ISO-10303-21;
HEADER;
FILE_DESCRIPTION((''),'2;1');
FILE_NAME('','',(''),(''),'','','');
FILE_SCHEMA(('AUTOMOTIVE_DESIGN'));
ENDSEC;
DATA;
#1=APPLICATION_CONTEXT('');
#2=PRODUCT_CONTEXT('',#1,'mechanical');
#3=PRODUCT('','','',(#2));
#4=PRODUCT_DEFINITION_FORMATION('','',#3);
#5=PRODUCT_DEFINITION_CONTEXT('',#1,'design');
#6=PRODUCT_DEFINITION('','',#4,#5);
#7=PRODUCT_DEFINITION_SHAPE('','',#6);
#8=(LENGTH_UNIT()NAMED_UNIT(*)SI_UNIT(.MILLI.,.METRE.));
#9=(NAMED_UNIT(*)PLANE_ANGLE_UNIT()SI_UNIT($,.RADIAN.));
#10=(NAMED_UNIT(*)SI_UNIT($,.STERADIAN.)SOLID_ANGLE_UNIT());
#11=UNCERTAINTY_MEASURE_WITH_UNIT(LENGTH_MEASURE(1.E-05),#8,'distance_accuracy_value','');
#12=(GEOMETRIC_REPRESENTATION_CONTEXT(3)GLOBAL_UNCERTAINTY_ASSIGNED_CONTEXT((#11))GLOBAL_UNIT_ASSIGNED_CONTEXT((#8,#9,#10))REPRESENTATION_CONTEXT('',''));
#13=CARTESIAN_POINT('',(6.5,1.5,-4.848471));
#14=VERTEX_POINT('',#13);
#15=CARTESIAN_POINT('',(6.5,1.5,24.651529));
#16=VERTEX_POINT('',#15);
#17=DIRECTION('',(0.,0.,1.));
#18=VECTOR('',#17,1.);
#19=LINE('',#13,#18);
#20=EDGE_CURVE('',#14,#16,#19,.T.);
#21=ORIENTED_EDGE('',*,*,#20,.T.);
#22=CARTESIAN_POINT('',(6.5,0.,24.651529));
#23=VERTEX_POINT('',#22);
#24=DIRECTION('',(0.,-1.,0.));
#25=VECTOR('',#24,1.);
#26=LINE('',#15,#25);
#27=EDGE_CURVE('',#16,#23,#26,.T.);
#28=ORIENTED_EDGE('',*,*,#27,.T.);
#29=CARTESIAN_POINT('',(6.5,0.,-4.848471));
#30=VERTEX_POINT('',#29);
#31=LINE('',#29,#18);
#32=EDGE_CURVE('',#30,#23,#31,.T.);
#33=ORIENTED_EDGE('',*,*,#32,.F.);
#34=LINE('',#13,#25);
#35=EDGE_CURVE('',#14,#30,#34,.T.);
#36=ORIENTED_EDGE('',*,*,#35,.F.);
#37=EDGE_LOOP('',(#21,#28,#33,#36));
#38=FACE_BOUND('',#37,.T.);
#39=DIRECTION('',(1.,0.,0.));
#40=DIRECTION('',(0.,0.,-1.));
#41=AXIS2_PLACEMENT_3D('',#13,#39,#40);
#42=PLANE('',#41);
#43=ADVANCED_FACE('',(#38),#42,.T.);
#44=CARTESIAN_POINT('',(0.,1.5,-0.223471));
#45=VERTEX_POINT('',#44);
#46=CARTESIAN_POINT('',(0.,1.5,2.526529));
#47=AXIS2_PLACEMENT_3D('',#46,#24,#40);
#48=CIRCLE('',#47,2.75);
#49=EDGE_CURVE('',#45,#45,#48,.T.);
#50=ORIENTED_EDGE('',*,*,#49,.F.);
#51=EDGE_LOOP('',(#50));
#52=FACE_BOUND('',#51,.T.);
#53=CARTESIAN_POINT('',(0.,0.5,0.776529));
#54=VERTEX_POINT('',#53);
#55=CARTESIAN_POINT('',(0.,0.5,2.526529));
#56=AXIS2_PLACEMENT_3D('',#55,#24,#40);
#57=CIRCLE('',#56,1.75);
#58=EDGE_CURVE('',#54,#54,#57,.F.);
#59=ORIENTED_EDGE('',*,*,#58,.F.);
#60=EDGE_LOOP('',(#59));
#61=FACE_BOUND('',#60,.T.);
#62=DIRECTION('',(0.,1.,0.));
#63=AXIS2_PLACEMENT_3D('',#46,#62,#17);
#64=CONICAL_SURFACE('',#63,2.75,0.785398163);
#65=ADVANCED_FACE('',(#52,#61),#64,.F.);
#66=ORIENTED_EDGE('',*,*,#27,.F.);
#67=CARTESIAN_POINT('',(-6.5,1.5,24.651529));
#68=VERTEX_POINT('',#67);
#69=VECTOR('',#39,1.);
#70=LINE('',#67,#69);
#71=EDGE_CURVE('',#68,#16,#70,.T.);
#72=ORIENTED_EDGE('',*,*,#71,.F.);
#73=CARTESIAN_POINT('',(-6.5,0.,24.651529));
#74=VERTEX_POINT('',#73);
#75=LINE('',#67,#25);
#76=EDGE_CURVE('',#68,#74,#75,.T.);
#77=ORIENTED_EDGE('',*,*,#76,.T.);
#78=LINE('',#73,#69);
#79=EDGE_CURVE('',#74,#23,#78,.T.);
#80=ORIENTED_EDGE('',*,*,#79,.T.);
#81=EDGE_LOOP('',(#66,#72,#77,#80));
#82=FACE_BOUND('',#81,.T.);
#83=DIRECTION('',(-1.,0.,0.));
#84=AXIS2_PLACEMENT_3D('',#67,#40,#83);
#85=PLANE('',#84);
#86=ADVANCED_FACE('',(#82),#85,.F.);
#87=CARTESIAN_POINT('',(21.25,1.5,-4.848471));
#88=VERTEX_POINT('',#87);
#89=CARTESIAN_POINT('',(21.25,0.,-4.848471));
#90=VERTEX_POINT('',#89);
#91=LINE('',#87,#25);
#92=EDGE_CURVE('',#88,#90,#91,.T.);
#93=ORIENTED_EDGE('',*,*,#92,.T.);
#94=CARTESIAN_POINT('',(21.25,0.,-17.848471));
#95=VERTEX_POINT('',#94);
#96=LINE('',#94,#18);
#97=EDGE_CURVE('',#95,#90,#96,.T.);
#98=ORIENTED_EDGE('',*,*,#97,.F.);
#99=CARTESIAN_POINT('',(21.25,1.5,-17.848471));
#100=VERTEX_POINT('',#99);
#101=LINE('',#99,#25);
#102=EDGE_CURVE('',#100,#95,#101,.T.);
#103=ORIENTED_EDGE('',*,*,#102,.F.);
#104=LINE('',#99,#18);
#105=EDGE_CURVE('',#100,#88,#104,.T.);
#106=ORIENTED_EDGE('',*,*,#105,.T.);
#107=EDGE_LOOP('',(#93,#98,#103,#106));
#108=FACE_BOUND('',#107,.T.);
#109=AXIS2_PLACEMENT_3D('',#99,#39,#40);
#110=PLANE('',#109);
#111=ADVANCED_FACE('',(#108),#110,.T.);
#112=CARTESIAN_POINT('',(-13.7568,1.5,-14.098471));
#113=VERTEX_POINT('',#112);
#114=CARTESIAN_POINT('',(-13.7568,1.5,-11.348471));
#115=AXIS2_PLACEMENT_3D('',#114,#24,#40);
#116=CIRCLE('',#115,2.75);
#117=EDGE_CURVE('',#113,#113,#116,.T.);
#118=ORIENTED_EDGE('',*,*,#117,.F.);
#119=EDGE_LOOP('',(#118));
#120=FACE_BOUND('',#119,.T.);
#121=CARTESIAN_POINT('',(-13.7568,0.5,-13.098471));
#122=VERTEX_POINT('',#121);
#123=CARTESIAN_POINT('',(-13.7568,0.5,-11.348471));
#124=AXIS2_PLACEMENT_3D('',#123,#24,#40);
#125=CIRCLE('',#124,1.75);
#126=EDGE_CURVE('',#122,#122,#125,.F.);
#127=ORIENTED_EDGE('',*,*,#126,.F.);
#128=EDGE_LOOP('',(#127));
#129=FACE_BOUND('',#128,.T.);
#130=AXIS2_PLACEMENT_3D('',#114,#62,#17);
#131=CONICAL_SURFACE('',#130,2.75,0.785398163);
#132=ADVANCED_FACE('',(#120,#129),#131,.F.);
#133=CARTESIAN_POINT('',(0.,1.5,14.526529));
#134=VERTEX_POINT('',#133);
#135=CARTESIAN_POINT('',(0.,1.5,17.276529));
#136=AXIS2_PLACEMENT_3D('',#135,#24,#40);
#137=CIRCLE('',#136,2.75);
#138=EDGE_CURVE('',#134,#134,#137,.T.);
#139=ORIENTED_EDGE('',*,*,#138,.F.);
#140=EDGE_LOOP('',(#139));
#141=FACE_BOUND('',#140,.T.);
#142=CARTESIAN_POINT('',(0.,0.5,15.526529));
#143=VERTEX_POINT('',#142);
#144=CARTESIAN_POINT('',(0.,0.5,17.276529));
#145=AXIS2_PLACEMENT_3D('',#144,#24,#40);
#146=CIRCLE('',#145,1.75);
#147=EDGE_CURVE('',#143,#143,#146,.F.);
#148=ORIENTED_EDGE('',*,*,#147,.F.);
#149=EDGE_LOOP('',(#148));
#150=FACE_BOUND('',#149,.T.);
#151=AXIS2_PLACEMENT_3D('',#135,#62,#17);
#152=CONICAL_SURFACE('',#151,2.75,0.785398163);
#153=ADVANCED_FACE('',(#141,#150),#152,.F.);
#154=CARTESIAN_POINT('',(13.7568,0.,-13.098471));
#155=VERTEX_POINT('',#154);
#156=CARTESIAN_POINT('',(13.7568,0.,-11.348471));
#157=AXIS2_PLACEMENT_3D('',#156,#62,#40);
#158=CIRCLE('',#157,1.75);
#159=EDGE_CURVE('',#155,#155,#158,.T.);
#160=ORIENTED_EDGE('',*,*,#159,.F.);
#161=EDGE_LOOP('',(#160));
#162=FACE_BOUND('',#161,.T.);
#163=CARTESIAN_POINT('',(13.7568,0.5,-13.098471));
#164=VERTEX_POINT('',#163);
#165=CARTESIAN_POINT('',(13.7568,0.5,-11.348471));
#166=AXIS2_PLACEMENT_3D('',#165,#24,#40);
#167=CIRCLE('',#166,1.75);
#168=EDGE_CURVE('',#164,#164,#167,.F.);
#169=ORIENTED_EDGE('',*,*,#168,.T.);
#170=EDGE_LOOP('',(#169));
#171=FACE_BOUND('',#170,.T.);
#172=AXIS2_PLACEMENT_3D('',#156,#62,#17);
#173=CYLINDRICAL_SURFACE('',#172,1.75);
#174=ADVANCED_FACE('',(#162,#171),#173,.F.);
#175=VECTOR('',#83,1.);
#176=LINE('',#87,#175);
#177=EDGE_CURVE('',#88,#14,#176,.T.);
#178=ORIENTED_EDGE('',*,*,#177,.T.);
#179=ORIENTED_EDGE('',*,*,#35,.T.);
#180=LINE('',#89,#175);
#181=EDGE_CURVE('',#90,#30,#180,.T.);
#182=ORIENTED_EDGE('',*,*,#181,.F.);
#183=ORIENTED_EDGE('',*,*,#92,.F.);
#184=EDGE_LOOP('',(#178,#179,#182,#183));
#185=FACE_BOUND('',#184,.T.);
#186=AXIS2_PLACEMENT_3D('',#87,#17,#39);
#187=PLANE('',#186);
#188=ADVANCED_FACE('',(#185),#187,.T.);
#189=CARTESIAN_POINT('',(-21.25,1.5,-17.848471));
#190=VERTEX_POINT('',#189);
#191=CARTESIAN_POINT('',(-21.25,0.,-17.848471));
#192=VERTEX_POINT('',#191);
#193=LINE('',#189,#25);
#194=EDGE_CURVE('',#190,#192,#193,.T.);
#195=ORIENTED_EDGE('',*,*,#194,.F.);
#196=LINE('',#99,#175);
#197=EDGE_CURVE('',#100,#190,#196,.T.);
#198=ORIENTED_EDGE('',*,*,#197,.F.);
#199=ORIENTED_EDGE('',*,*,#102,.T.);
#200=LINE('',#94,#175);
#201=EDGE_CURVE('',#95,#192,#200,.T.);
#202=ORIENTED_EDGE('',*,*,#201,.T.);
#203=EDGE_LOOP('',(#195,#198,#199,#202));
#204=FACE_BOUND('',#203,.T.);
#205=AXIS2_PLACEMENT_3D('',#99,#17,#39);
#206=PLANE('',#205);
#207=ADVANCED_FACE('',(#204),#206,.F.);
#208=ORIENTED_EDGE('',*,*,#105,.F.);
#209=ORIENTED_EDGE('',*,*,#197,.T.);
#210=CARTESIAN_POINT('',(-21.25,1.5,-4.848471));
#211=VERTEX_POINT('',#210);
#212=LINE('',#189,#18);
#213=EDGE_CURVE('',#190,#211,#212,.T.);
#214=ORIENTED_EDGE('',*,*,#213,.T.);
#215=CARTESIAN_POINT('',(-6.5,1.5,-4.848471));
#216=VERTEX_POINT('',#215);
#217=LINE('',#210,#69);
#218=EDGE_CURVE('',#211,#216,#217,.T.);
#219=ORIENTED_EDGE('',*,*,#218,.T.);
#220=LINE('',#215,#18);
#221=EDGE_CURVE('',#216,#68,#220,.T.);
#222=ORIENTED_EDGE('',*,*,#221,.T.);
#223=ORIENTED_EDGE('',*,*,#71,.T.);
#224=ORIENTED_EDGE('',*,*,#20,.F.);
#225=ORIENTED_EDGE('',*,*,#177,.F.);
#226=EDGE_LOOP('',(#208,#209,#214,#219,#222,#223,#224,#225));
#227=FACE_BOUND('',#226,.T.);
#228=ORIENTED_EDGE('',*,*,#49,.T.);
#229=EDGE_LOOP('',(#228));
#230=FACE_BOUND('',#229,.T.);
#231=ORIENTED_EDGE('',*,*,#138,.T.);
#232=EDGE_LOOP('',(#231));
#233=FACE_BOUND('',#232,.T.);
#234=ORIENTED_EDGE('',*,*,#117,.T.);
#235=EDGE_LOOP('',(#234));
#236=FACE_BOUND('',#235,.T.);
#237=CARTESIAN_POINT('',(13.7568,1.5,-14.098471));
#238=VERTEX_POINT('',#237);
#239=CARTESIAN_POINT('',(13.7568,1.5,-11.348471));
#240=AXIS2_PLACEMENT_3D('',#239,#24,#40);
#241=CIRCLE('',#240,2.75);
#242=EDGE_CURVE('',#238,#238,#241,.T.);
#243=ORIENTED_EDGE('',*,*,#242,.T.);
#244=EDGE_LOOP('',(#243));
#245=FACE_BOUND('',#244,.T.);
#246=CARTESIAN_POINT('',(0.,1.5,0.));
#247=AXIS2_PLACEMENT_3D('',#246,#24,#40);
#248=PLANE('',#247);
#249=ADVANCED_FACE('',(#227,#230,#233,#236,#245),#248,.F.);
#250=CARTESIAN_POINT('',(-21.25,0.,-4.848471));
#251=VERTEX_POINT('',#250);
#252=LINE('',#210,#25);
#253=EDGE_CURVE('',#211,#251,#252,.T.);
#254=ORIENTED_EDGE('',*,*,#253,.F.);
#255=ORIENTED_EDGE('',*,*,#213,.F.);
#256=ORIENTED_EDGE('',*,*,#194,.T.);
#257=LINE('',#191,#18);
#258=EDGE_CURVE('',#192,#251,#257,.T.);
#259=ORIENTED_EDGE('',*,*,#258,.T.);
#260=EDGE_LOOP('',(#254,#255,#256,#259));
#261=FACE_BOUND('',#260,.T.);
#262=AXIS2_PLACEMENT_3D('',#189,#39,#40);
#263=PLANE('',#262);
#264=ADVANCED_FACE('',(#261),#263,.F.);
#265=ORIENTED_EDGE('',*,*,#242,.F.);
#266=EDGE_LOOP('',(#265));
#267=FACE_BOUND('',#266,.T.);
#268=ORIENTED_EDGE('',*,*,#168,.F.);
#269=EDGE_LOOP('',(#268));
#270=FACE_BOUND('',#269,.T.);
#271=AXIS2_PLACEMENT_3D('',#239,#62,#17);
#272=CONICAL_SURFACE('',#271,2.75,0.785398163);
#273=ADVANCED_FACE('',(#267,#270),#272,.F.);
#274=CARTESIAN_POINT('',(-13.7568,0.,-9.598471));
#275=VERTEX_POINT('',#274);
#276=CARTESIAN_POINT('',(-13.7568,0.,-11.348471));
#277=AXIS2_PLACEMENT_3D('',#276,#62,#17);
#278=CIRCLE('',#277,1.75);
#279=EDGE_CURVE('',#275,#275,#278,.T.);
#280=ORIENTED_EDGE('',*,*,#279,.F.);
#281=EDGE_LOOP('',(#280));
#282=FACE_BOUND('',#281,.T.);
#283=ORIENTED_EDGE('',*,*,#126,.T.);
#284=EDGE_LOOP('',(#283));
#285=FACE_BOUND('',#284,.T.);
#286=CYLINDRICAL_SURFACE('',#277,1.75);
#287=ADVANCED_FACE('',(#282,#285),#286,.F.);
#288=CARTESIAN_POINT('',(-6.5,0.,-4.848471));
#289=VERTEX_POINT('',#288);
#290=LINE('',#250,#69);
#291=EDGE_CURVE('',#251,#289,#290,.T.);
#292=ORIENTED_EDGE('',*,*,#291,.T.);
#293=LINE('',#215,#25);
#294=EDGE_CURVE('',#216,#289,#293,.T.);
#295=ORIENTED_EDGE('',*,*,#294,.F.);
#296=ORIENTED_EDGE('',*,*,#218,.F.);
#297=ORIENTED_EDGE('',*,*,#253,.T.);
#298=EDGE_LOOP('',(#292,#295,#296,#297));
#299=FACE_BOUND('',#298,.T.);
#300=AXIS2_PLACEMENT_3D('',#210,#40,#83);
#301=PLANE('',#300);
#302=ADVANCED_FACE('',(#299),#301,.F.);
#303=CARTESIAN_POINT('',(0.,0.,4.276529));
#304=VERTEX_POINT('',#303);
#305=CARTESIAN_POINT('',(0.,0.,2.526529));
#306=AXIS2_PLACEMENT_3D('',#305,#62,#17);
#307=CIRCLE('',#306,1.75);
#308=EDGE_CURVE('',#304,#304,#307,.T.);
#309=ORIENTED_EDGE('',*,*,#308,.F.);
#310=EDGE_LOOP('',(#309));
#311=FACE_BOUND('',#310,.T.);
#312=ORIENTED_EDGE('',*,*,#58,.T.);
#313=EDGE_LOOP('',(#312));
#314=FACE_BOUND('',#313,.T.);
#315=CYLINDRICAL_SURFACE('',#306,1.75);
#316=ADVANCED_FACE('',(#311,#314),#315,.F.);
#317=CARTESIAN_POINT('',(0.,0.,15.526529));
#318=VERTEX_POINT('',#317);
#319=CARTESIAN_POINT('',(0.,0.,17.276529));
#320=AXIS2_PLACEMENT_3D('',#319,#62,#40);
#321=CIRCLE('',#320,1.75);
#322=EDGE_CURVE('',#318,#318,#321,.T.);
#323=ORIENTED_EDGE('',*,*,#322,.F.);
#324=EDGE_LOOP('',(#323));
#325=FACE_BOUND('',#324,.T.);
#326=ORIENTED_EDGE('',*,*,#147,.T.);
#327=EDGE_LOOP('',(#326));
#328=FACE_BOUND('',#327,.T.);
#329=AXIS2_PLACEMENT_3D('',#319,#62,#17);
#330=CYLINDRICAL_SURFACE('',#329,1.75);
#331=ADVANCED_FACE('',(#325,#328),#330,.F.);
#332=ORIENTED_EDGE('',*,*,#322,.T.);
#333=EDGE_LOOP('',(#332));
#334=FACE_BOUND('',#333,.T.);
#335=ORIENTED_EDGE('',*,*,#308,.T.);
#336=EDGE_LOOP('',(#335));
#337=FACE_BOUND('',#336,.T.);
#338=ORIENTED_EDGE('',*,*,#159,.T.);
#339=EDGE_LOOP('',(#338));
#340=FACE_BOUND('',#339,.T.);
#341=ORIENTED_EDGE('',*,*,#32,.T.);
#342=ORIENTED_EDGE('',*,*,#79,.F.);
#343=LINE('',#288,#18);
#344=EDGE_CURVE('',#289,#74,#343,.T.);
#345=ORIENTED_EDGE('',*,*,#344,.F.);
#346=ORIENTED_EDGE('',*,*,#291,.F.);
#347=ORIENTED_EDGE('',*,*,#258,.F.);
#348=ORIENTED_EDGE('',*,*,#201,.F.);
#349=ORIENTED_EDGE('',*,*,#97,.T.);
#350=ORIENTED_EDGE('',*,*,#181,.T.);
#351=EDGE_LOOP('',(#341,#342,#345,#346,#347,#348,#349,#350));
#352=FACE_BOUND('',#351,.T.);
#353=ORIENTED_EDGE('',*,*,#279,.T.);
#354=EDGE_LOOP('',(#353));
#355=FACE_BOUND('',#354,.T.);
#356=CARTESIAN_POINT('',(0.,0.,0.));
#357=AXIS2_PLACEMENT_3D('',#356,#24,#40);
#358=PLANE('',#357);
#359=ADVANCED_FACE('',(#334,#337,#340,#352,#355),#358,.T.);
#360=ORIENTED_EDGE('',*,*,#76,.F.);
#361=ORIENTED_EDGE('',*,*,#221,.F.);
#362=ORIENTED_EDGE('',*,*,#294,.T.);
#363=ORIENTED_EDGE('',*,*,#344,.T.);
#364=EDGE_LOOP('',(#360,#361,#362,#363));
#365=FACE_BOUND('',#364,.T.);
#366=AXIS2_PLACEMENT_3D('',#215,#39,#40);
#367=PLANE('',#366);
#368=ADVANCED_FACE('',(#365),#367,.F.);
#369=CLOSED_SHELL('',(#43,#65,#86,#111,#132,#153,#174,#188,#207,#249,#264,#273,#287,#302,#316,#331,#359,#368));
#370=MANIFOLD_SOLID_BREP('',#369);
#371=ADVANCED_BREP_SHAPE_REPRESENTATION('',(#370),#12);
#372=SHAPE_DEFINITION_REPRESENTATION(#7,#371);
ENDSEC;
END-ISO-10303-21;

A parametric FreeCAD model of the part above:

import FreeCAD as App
import Part
import Sketcher
Q = App.Units.Quantity


def edges_at(feature, points):
    """Names of the edges that pass closest to the given points."""
    edges = feature.Shape.Edges
    near = lambda p: min(range(len(edges)), key=lambda i: edges[i].distToShape(Part.Vertex(*p))[0])
    return sorted({f"Edge{near(p) + 1}" for p in points})

doc = App.newDocument("Part")
body = doc.addObject("PartDesign::Body", "Body")

# Sketch on XZ plane
sketch1 = body.newObject("Sketcher::SketchObject", "Sketch")
sketch1.AttachmentSupport = (doc.getObject("XZ_Plane"), [""])
sketch1.MapMode = "FlatFace"
sketch1.addGeometry([
    Part.LineSegment(App.Vector(21.25, -17.848471, 0), App.Vector(-21.25, -17.848471, 0)),  # 0
    Part.LineSegment(App.Vector(-21.25, -17.848471, 0), App.Vector(-21.25, -4.848471, 0)),  # 1
    Part.LineSegment(App.Vector(-21.25, -4.848471, 0), App.Vector(-6.5, -4.848471, 0)),  # 2
    Part.LineSegment(App.Vector(-6.5, -4.848471, 0), App.Vector(-6.5, 24.651529, 0)),  # 3
    Part.LineSegment(App.Vector(-6.5, 24.651529, 0), App.Vector(6.5, 24.651529, 0)),  # 4
    Part.LineSegment(App.Vector(6.5, 24.651529, 0), App.Vector(6.5, -4.848471, 0)),  # 5
    Part.LineSegment(App.Vector(6.5, -4.848471, 0), App.Vector(21.25, -4.848471, 0)),  # 6
    Part.LineSegment(App.Vector(21.25, -4.848471, 0), App.Vector(21.25, -17.848471, 0)),  # 7
], False)
sketch1.addConstraint([
    Sketcher.Constraint("Coincident", 0, 2, 1, 1),
    Sketcher.Constraint("Coincident", 1, 2, 2, 1),
    Sketcher.Constraint("Coincident", 2, 2, 3, 1),
    Sketcher.Constraint("Coincident", 3, 2, 4, 1),
    Sketcher.Constraint("Coincident", 4, 2, 5, 1),
    Sketcher.Constraint("Coincident", 5, 2, 6, 1),
    Sketcher.Constraint("Coincident", 6, 2, 7, 1),
    Sketcher.Constraint("Coincident", 7, 2, 0, 1),
    Sketcher.Constraint("Horizontal", 0),
    Sketcher.Constraint("Vertical", 1),
    Sketcher.Constraint("Horizontal", 2),
    Sketcher.Constraint("Vertical", 3),
    Sketcher.Constraint("Horizontal", 4),
    Sketcher.Constraint("Vertical", 5),
    Sketcher.Constraint("Horizontal", 6),
    Sketcher.Constraint("Vertical", 7),
    Sketcher.Constraint("Symmetric", 2, 2, 5, 2, -2),
    Sketcher.Constraint("Equal", 2, 6),
    Sketcher.Constraint("Equal", 4, 1),
    Sketcher.Constraint("DistanceX", 4, 1, 4, 2, Q("13 mm")),
    Sketcher.Constraint("DistanceX", 0, 2, 0, 1, Q("42.5 mm")),
    Sketcher.Constraint("DistanceY", 3, 1, 3, 2, Q("29.5 mm")),
    Sketcher.Constraint("DistanceY", 0, 2, -1, 1, Q("17.848471 mm")),
])
pad1 = body.newObject("PartDesign::Pad", "Pad")
pad1.Profile = sketch1
pad1.Length = 1.5
pad1.Reversed = True

# Sketch on XZ plane
sketch2 = body.newObject("Sketcher::SketchObject", "Sketch001")
sketch2.AttachmentSupport = (doc.getObject("XZ_Plane"), [""])
sketch2.MapMode = "FlatFace"
sketch2.AttachmentOffset = App.Placement(App.Vector(0, 0, -1.5), App.Rotation())
sketch2.addGeometry([
    Part.Circle(App.Vector(-13.7568, -11.348471, 0), App.Vector(0, 0, 1), 1.75),
    Part.Circle(App.Vector(13.7568, -11.348471, 0), App.Vector(0, 0, 1), 1.75),
    Part.Circle(App.Vector(0, 2.526529, 0), App.Vector(0, 0, 1), 1.75),
    Part.Circle(App.Vector(0, 17.276529, 0), App.Vector(0, 0, 1), 1.75),
], False)
sketch2.addConstraint([
    Sketcher.Constraint("Equal", 0, 1),
    Sketcher.Constraint("Equal", 1, 2),
    Sketcher.Constraint("Equal", 2, 3),
    Sketcher.Constraint("Symmetric", 0, 3, 1, 3, -2),
    Sketcher.Constraint("PointOnObject", 2, 3, -2),
    Sketcher.Constraint("PointOnObject", 3, 3, -2),
    Sketcher.Constraint("Diameter", 0, Q("3.5 mm")),
    Sketcher.Constraint("DistanceY", 2, 3, 3, 3, Q("14.75 mm")),
    Sketcher.Constraint("DistanceY", 0, 3, 2, 3, Q("13.875 mm")),
    Sketcher.Constraint("DistanceX", 0, 3, -1, 1, Q("13.7568 mm")),
    Sketcher.Constraint("DistanceY", 0, 3, -1, 1, Q("11.348471 mm")),
])
pocket1 = body.newObject("PartDesign::Pocket", "Pocket")
pocket1.Profile = sketch2
pocket1.Type = "ThroughAll"
pocket1.Midplane = True
doc.recompute()

chamfer = body.newObject("PartDesign::Chamfer", "Chamfer")
chamfer.Base = (pocket1, edges_at(pocket1, [(-13.757, 1.5, -13.098)]))
chamfer.Size = 1
doc.recompute()

chamfer2 = body.newObject("PartDesign::Chamfer", "Chamfer001")
chamfer2.Base = (chamfer, edges_at(chamfer, [(13.757, 1.5, -9.598), (0, 1.5, 19.027), (0, 1.5, 0.777)]))
chamfer2.Size = 1

doc.recompute()
